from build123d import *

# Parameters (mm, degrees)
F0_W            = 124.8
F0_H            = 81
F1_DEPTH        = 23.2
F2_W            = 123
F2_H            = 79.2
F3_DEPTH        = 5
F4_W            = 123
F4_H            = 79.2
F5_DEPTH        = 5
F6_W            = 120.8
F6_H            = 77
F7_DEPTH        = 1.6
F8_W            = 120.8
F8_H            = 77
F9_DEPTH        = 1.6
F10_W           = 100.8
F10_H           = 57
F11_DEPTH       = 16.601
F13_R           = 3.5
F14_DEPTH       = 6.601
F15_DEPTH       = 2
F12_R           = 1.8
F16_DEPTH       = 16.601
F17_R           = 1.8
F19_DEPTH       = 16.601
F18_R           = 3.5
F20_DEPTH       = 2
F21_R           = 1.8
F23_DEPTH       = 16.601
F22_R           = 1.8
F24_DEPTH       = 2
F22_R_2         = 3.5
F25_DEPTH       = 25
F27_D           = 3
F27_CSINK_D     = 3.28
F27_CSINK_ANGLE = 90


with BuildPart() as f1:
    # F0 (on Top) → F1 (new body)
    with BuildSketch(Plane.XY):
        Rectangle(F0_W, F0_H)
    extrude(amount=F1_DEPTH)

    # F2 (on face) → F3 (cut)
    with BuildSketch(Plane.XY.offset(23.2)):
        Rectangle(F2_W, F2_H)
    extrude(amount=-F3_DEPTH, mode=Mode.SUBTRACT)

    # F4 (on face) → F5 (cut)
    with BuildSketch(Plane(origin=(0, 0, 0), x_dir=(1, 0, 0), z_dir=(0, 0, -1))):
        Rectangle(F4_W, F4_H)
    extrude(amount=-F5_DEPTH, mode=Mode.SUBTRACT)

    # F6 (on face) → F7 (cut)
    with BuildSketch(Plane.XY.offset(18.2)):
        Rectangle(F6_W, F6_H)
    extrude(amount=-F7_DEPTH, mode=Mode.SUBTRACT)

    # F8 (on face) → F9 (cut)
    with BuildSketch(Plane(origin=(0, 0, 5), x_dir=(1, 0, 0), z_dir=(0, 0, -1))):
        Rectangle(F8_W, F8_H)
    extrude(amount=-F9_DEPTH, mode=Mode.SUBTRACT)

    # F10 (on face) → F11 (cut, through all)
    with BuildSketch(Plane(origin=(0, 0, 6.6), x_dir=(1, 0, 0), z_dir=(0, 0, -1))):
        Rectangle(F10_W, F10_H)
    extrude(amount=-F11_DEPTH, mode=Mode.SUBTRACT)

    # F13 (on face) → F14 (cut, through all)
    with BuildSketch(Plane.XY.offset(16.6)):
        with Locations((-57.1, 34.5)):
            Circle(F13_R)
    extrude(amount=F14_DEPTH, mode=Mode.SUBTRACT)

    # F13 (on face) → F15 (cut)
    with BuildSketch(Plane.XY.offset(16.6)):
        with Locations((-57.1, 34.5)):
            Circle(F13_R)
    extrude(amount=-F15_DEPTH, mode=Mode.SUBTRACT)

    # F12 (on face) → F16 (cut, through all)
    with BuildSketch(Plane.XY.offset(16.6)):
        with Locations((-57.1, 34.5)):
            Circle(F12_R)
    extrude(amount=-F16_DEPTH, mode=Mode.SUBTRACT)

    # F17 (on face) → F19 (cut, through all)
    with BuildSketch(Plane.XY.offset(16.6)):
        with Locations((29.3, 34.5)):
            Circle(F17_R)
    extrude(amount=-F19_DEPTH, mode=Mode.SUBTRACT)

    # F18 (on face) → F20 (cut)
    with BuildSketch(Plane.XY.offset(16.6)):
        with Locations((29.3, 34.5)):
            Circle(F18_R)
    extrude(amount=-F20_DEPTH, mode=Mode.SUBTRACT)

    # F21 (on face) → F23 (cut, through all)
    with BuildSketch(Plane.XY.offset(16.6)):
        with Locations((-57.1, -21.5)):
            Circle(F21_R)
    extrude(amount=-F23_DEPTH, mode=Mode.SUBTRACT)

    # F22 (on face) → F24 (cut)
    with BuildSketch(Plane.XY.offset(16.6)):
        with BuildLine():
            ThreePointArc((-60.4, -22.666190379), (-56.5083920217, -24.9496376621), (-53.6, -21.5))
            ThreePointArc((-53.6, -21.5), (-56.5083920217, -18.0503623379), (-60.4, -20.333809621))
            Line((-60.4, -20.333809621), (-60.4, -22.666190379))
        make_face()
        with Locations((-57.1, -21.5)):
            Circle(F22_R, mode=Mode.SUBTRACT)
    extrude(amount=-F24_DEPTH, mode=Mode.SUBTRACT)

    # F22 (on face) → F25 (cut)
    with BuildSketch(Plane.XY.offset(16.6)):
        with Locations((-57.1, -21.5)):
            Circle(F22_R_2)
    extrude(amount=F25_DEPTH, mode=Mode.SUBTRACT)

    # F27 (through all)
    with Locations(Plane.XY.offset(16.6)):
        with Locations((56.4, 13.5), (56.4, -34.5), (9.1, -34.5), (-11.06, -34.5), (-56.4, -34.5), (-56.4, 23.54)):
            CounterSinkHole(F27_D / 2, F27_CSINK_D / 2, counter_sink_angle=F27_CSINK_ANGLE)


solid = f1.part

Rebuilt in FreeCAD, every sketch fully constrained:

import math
import FreeCAD as App
import Part
import Sketcher
from FreeCAD import Vector


def add_polygon(sketch, points):
    """Adds a closed chain of lines whose ends are joined by coincident constraints."""
    first, n = sketch.GeometryCount, len(points)
    for a, b in zip(points, points[1:] + points[:1]):
        sketch.addGeometry(Part.LineSegment(App.Vector(*a, 0), App.Vector(*b, 0)), False)
    for i in range(n):
        sketch.addConstraint(Sketcher.Constraint("Coincident", first + i, 2, first + (i + 1) % n, 1))

doc = App.newDocument("Part")
body = doc.addObject("PartDesign::Body", "Body")

sketch1 = body.newObject("Sketcher::SketchObject", "Sketch")
sketch1.AttachmentSupport = (doc.getObject("XY_Plane"), [""])
sketch1.MapMode = "FlatFace"
add_polygon(sketch1, [(-62, 40), (-62, -40), (62, -40), (62, 40)])
sketch1.addConstraint([
    Sketcher.Constraint("Vertical", 0),
    Sketcher.Constraint("Horizontal", 1),
    Sketcher.Constraint("Vertical", 2),
    Sketcher.Constraint("Horizontal", 3),
    Sketcher.Constraint("Symmetric", 0, 2, 2, 2, -1, 1),
    Sketcher.Constraint("DistanceY", 0, 2, 0, 1, 81.0),
    Sketcher.Constraint("DistanceX", 1, 1, 1, 2, 124.8),
])
pad1 = body.newObject("PartDesign::Pad", "Pad")
pad1.Profile = sketch1
pad1.Length = 23.2

sketch2 = body.newObject("Sketcher::SketchObject", "Sketch001")
sketch2.AttachmentSupport = (doc.getObject("XY_Plane"), [""])
sketch2.MapMode = "FlatFace"
sketch2.AttachmentOffset = App.Placement(Vector(0, 0, 23.2), App.Rotation())
add_polygon(sketch2, [(-62, 40), (-62, -40), (62, -40), (62, 40)])
sketch2.addConstraint([
    Sketcher.Constraint("Vertical", 0),
    Sketcher.Constraint("Horizontal", 1),
    Sketcher.Constraint("Vertical", 2),
    Sketcher.Constraint("Horizontal", 3),
    Sketcher.Constraint("Symmetric", 0, 2, 2, 2, -1, 1),
    Sketcher.Constraint("DistanceX", 1, 1, 1, 2, 123.0),
    Sketcher.Constraint("DistanceY", 0, 2, 0, 1, 79.2),
])
pocket1 = body.newObject("PartDesign::Pocket", "Pocket")
pocket1.Profile = sketch2
pocket1.Length = 5

sketch3 = body.newObject("Sketcher::SketchObject", "Sketch002")
sketch3.AttachmentSupport = (doc.getObject("XY_Plane"), [""])
sketch3.MapMode = "FlatFace"
add_polygon(sketch3, [(-62, -40), (-62, 40), (62, 40), (62, -40)])
sketch3.addConstraint([
    Sketcher.Constraint("Vertical", 0),
    Sketcher.Constraint("Horizontal", 1),
    Sketcher.Constraint("Vertical", 2),
    Sketcher.Constraint("Horizontal", 3),
    Sketcher.Constraint("Symmetric", 0, 2, 2, 2, -1, 1),
    Sketcher.Constraint("DistanceX", 1, 1, 1, 2, 123.0),
    Sketcher.Constraint("DistanceY", 0, 1, 0, 2, 79.2),
])
pocket2 = body.newObject("PartDesign::Pocket", "Pocket001")
pocket2.Profile = sketch3
pocket2.Length = 5
pocket2.Reversed = True

sketch4 = body.newObject("Sketcher::SketchObject", "Sketch003")
sketch4.AttachmentSupport = (doc.getObject("XY_Plane"), [""])
sketch4.MapMode = "FlatFace"
sketch4.AttachmentOffset = App.Placement(Vector(0, 0, 18.2), App.Rotation())
add_polygon(sketch4, [(-60, 38), (-60, -38), (60, -38), (60, 38)])
sketch4.addConstraint([
    Sketcher.Constraint("Vertical", 0),
    Sketcher.Constraint("Horizontal", 1),
    Sketcher.Constraint("Vertical", 2),
    Sketcher.Constraint("Horizontal", 3),
    Sketcher.Constraint("Symmetric", 0, 2, 2, 2, -1, 1),
    Sketcher.Constraint("DistanceY", 0, 2, 0, 1, 77.0),
    Sketcher.Constraint("DistanceX", 1, 1, 1, 2, 120.8),
])
pocket3 = body.newObject("PartDesign::Pocket", "Pocket002")
pocket3.Profile = sketch4
pocket3.Length = 1.6

sketch5 = body.newObject("Sketcher::SketchObject", "Sketch004")
sketch5.AttachmentSupport = (doc.getObject("XY_Plane"), [""])
sketch5.MapMode = "FlatFace"
sketch5.AttachmentOffset = App.Placement(Vector(0, 0, 5), App.Rotation())
add_polygon(sketch5, [(-60, -38), (-60, 38), (60, 38), (60, -38)])
sketch5.addConstraint([
    Sketcher.Constraint("Vertical", 0),
    Sketcher.Constraint("Horizontal", 1),
    Sketcher.Constraint("Vertical", 2),
    Sketcher.Constraint("Horizontal", 3),
    Sketcher.Constraint("Symmetric", 0, 2, 2, 2, -1, 1),
    Sketcher.Constraint("DistanceY", 0, 1, 0, 2, 77.0),
    Sketcher.Constraint("DistanceX", 1, 1, 1, 2, 120.8),
])
pocket4 = body.newObject("PartDesign::Pocket", "Pocket003")
pocket4.Profile = sketch5
pocket4.Length = 1.6
pocket4.Reversed = True

sketch6 = body.newObject("Sketcher::SketchObject", "Sketch005")
sketch6.AttachmentSupport = (doc.getObject("XY_Plane"), [""])
sketch6.MapMode = "FlatFace"
sketch6.AttachmentOffset = App.Placement(Vector(0, 0, 6.6), App.Rotation())
add_polygon(sketch6, [(-50, -28), (-50, 28), (50, 28), (50, -28)])
sketch6.addConstraint([
    Sketcher.Constraint("Vertical", 0),
    Sketcher.Constraint("Horizontal", 1),
    Sketcher.Constraint("Vertical", 2),
    Sketcher.Constraint("Horizontal", 3),
    Sketcher.Constraint("Symmetric", 0, 2, 2, 2, -1, 1),
    Sketcher.Constraint("DistanceY", 0, 1, 0, 2, 57.0),
    Sketcher.Constraint("DistanceX", 1, 1, 1, 2, 100.8),
])
pocket5 = body.newObject("PartDesign::Pocket", "Pocket004")
pocket5.Profile = sketch6
pocket5.Type = "ThroughAll"
pocket5.Reversed = True

sketch7 = body.newObject("Sketcher::SketchObject", "Sketch006")
sketch7.AttachmentSupport = (doc.getObject("XY_Plane"), [""])
sketch7.MapMode = "FlatFace"
sketch7.AttachmentOffset = App.Placement(Vector(0, 0, 16.6), App.Rotation())
sketch7.addGeometry(Part.Circle(Vector(-57.1, 34.5, 0), Vector(0, 0, 1), 3.5), False)
sketch7.addConstraint([
    Sketcher.Constraint("Diameter", 0, 7.0),
    Sketcher.Constraint("DistanceX", 0, 3, -1, 1, 57.1),
    Sketcher.Constraint("DistanceY", -1, 1, 0, 3, 34.5),
])
pocket6 = body.newObject("PartDesign::Pocket", "Pocket005")
pocket6.Profile = sketch7
pocket6.Type = "ThroughAll"
pocket6.Reversed = True

sketch8 = body.newObject("Sketcher::SketchObject", "Sketch007")
sketch8.AttachmentSupport = (doc.getObject("XY_Plane"), [""])
sketch8.MapMode = "FlatFace"
sketch8.AttachmentOffset = App.Placement(Vector(0, 0, 16.6), App.Rotation())
sketch8.addGeometry(Part.Circle(Vector(-57.1, 34.5, 0), Vector(0, 0, 1), 3.5), False)
sketch8.addConstraint([
    Sketcher.Constraint("Diameter", 0, 7.0),
    Sketcher.Constraint("DistanceX", 0, 3, -1, 1, 57.1),
    Sketcher.Constraint("DistanceY", -1, 1, 0, 3, 34.5),
])
pocket7 = body.newObject("PartDesign::Pocket", "Pocket006")
pocket7.Profile = sketch8
pocket7.Length = 2

sketch9 = body.newObject("Sketcher::SketchObject", "Sketch008")
sketch9.AttachmentSupport = (doc.getObject("XY_Plane"), [""])
sketch9.MapMode = "FlatFace"
sketch9.AttachmentOffset = App.Placement(Vector(0, 0, 16.6), App.Rotation())
sketch9.addGeometry(Part.Circle(Vector(-57.1, 34.5, 0), Vector(0, 0, 1), 1.8), False)
sketch9.addConstraint([
    Sketcher.Constraint("Diameter", 0, 3.6),
    Sketcher.Constraint("DistanceX", 0, 3, -1, 1, 57.1),
    Sketcher.Constraint("DistanceY", -1, 1, 0, 3, 34.5),
])
pocket8 = body.newObject("PartDesign::Pocket", "Pocket007")
pocket8.Profile = sketch9
pocket8.Type = "ThroughAll"

sketch10 = body.newObject("Sketcher::SketchObject", "Sketch009")
sketch10.AttachmentSupport = (doc.getObject("XY_Plane"), [""])
sketch10.MapMode = "FlatFace"
sketch10.AttachmentOffset = App.Placement(Vector(0, 0, 16.6), App.Rotation())
sketch10.addGeometry(Part.Circle(Vector(29.3, 34.5, 0), Vector(0, 0, 1), 1.8), False)
sketch10.addConstraint([
    Sketcher.Constraint("Diameter", 0, 3.6),
    Sketcher.Constraint("DistanceX", -1, 1, 0, 3, 29.3),
    Sketcher.Constraint("DistanceY", -1, 1, 0, 3, 34.5),
])
pocket9 = body.newObject("PartDesign::Pocket", "Pocket008")
pocket9.Profile = sketch10
pocket9.Type = "ThroughAll"

sketch11 = body.newObject("Sketcher::SketchObject", "Sketch010")
sketch11.AttachmentSupport = (doc.getObject("XY_Plane"), [""])
sketch11.MapMode = "FlatFace"
sketch11.AttachmentOffset = App.Placement(Vector(0, 0, 16.6), App.Rotation())
sketch11.addGeometry(Part.Circle(Vector(29.3, 34.5, 0), Vector(0, 0, 1), 3.5), False)
sketch11.addConstraint([
    Sketcher.Constraint("Diameter", 0, 7.0),
    Sketcher.Constraint("DistanceX", -1, 1, 0, 3, 29.3),
    Sketcher.Constraint("DistanceY", -1, 1, 0, 3, 34.5),
])
pocket10 = body.newObject("PartDesign::Pocket", "Pocket009")
pocket10.Profile = sketch11
pocket10.Length = 2

sketch12 = body.newObject("Sketcher::SketchObject", "Sketch011")
sketch12.AttachmentSupport = (doc.getObject("XY_Plane"), [""])
sketch12.MapMode = "FlatFace"
sketch12.AttachmentOffset = App.Placement(Vector(0, 0, 16.6), App.Rotation())
sketch12.addGeometry(Part.Circle(Vector(-57.1, -21.5, 0), Vector(0, 0, 1), 1.8), False)
sketch12.addConstraint([
    Sketcher.Constraint("Diameter", 0, 3.6),
    Sketcher.Constraint("DistanceX", 0, 3, -1, 1, 57.1),
    Sketcher.Constraint("DistanceY", 0, 3, -1, 1, 21.5),
])
pocket11 = body.newObject("PartDesign::Pocket", "Pocket010")
pocket11.Profile = sketch12
pocket11.Type = "ThroughAll"

sketch13 = body.newObject("Sketcher::SketchObject", "Sketch012")
sketch13.AttachmentSupport = (doc.getObject("XY_Plane"), [""])
sketch13.MapMode = "FlatFace"
sketch13.AttachmentOffset = App.Placement(Vector(0, 0, 16.6), App.Rotation())
sketch13.addGeometry([
    Part.ArcOfCircle(Part.Circle(Vector(-57.1, -21.5, 0), Vector(0, 0, 1), 3.5), math.radians(-161), math.radians(0)),
    Part.ArcOfCircle(Part.Circle(Vector(-57.1, -21.5, 0), Vector(0, 0, 1), 3.5), math.radians(0), math.radians(161)),
    Part.LineSegment(Vector(-60.4, -20.3, 0), Vector(-60.4, -22.7, 0)),
    Part.Circle(Vector(-57.1, -21.5, 0), Vector(0, 0, 1), 1.8),
], False)
sketch13.addConstraint([
    Sketcher.Constraint("Tangent", 0, 2, 1, 1),
    Sketcher.Constraint("Coincident", 1, 2, 2, 1),
    Sketcher.Constraint("Coincident", 2, 2, 0, 1),
    Sketcher.Constraint("Vertical", 2),
    Sketcher.Constraint("Coincident", 3, 3, 0, 3),
    Sketcher.Constraint("Equal", 0, 1),
    Sketcher.Constraint("Horizontal", 3, 3, 0, 2),
    Sketcher.Constraint("Diameter", 3, 3.6),
    Sketcher.Constraint("Radius", 0, 3.5),
    Sketcher.Constraint("DistanceX", 0, 3, -1, 1, 57.1),
    Sketcher.Constraint("DistanceY", 0, 3, -1, 1, 21.5),
    Sketcher.Constraint("DistanceX", 1, 2, -1, 1, 60.4),
])
pocket12 = body.newObject("PartDesign::Pocket", "Pocket011")
pocket12.Profile = sketch13
pocket12.Length = 2

sketch14 = body.newObject("Sketcher::SketchObject", "Sketch013")
sketch14.AttachmentSupport = (doc.getObject("XY_Plane"), [""])
sketch14.MapMode = "FlatFace"
sketch14.AttachmentOffset = App.Placement(Vector(0, 0, 16.6), App.Rotation())
sketch14.addGeometry(Part.Circle(Vector(-57.1, -21.5, 0), Vector(0, 0, 1), 3.5), False)
sketch14.addConstraint([
    Sketcher.Constraint("Diameter", 0, 7.0),
    Sketcher.Constraint("DistanceX", 0, 3, -1, 1, 57.1),
    Sketcher.Constraint("DistanceY", 0, 3, -1, 1, 21.5),
])
pocket13 = body.newObject("PartDesign::Pocket", "Pocket012")
pocket13.Profile = sketch14
pocket13.Length = 25
pocket13.Reversed = True

sketch15 = body.newObject("Sketcher::SketchObject", "Sketch014")
sketch15.AttachmentSupport = (doc.getObject("XY_Plane"), [""])
sketch15.MapMode = "FlatFace"
sketch15.AttachmentOffset = App.Placement(Vector(0, 0, 16.6), App.Rotation())
sketch15.addGeometry([
    Part.Circle(Vector(56.4, 13.5, 0), Vector(0, 0, 1), 1.5),
    Part.Circle(Vector(56.4, -34.5, 0), Vector(0, 0, 1), 1.5),
    Part.Circle(Vector(9.1, -34.5, 0), Vector(0, 0, 1), 1.5),
    Part.Circle(Vector(-11.1, -34.5, 0), Vector(0, 0, 1), 1.5),
    Part.Circle(Vector(-56.4, -34.5, 0), Vector(0, 0, 1), 1.5),
    Part.Circle(Vector(-56.4, 23.5, 0), Vector(0, 0, 1), 1.5),
], False)
sketch15.addConstraint([
    Sketcher.Constraint("Equal", 0, 1),
    Sketcher.Constraint("Equal", 1, 2),
    Sketcher.Constraint("Equal", 2, 3),
    Sketcher.Constraint("Equal", 3, 4),
    Sketcher.Constraint("Equal", 4, 5),
    Sketcher.Constraint("Symmetric", 1, 3, 4, 3, -2),
    Sketcher.Constraint("Horizontal", 1, 3, 2, 3),
    Sketcher.Constraint("Horizontal", 2, 3, 3, 3),
    Sketcher.Constraint("Vertical", 0, 3, 1, 3),
    Sketcher.Constraint("Vertical", 4, 3, 5, 3),
    Sketcher.Constraint("Diameter", 0, 3.0),
    Sketcher.Constraint("DistanceY", 1, 3, 0, 3, 48.0),
    Sketcher.Constraint("DistanceX", -1, 1, 0, 3, 56.4),
    Sketcher.Constraint("DistanceY", -1, 1, 0, 3, 13.5),
    Sketcher.Constraint("DistanceX", -1, 1, 2, 3, 9.1),
    Sketcher.Constraint("DistanceX", 3, 3, -1, 1, 11.06),
    Sketcher.Constraint("DistanceY", -1, 1, 5, 3, 23.54),
])
doc.recompute()
hole = body.newObject("PartDesign::Hole", "Hole")
hole.Profile = sketch15
hole.ThreadType = "None"
hole.Diameter = 3
hole.DepthType = "ThroughAll"
hole.HoleCutType = "Countersink"
hole.HoleCutDiameter = 3.28
hole.HoleCutCountersinkAngle = 90

doc.recompute()
